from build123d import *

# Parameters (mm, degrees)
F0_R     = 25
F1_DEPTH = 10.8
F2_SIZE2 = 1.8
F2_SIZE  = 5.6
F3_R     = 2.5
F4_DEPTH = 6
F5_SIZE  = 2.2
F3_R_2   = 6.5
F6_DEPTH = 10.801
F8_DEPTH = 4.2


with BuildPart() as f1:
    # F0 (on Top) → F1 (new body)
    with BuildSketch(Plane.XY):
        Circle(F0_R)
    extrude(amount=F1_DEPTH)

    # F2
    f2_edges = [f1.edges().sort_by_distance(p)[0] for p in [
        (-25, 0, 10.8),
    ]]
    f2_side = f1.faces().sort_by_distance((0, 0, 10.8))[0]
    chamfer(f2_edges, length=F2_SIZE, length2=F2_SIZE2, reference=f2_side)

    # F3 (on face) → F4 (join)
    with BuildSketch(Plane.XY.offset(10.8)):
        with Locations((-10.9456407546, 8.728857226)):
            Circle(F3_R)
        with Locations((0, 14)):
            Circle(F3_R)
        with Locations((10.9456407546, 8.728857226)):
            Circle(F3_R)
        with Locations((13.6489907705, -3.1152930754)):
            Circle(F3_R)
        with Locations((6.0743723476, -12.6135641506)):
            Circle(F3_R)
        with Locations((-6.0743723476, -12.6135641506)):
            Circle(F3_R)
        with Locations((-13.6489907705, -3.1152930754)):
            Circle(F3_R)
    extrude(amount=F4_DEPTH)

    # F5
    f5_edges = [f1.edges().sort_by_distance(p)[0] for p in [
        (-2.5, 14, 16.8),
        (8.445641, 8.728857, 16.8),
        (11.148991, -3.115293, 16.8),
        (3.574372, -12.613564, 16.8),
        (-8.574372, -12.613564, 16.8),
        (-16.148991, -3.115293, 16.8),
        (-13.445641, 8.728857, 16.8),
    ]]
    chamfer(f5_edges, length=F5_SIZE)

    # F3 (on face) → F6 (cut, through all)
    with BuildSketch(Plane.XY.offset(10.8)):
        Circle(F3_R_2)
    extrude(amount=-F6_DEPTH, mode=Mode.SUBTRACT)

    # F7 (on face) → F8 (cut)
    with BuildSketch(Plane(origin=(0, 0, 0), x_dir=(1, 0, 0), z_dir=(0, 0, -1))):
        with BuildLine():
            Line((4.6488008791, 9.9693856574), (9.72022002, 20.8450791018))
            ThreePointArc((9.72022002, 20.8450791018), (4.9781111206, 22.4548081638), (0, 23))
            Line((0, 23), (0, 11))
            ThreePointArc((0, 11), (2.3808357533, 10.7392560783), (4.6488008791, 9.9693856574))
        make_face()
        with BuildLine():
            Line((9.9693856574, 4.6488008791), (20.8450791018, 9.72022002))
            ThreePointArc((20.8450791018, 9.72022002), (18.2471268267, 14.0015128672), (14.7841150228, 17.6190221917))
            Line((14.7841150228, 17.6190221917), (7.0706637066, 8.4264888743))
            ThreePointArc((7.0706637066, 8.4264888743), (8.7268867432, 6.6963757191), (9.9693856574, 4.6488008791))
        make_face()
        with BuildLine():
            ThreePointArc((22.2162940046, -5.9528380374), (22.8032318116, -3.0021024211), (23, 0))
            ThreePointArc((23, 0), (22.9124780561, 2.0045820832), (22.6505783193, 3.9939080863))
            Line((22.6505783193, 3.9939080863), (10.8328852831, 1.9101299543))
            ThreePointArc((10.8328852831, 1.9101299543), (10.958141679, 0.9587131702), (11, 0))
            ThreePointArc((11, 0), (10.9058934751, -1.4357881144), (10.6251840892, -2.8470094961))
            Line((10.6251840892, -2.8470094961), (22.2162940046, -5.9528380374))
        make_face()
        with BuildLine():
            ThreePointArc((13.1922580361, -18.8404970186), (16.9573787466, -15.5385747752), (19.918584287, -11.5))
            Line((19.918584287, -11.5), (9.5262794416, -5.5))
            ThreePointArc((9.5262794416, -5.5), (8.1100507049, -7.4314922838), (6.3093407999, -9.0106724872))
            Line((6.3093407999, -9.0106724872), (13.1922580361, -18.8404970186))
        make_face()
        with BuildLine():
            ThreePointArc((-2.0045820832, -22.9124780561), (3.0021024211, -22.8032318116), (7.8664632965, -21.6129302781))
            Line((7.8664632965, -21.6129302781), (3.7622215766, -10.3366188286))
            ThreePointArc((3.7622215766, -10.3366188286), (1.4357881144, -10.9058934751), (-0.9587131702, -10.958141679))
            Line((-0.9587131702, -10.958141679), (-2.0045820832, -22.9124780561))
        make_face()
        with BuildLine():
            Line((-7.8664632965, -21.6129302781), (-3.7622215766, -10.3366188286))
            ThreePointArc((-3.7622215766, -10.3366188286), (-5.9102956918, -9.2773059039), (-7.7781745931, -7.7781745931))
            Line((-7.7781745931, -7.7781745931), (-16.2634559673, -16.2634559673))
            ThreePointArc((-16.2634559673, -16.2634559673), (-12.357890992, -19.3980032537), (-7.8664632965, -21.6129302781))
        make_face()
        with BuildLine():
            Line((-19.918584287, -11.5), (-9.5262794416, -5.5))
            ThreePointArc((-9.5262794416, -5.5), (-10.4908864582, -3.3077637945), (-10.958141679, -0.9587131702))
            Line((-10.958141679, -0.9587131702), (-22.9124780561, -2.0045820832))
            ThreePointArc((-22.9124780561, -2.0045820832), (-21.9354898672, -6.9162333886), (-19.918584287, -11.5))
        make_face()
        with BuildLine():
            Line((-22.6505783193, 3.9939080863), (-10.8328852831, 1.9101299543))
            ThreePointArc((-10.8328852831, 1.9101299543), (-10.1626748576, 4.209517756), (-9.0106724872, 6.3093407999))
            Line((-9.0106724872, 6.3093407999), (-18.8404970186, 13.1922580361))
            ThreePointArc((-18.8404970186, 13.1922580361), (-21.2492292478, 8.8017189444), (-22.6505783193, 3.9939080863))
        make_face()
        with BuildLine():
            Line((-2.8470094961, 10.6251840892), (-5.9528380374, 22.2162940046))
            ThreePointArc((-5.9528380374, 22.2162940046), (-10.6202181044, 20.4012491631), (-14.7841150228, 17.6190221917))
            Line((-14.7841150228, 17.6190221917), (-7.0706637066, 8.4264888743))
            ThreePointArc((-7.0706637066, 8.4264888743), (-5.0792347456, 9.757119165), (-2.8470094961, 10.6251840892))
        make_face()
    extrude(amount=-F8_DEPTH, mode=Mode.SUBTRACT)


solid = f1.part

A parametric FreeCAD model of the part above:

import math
import FreeCAD as App
import Part
import Sketcher

V = App.Vector
Q = App.Units.Quantity


def edges_at(feature, points):
    """Names of the edges that pass closest to the given points."""
    edges = feature.Shape.Edges
    near = lambda p: min(range(len(edges)), key=lambda i: edges[i].distToShape(Part.Vertex(*p))[0])
    return sorted({f"Edge{near(p) + 1}" for p in points})

doc = App.newDocument("Part")
body = doc.addObject("PartDesign::Body", "Body")

sketch1 = body.newObject("Sketcher::SketchObject", "Sketch")
sketch1.AttachmentSupport = (doc.getObject("XY_Plane"), [""])
sketch1.MapMode = "FlatFace"
sketch1.addGeometry(Part.Circle(V(0, 0, 0), V(0, 0, 1), 25), False)
sketch1.addConstraint(Sketcher.Constraint("Coincident", 0, 3, -1, 1))
sketch1.addConstraint(Sketcher.Constraint("Diameter", 0, Q("50 mm")))
pad1 = body.newObject("PartDesign::Pad", "Pad")
pad1.Profile = sketch1
pad1.Length = 10.8
doc.recompute()

chamfer = body.newObject("PartDesign::Chamfer", "Chamfer")
chamfer.Base = (pad1, edges_at(pad1, [(-25, 0, 10.8)]))
chamfer.ChamferType = "Two distances"
chamfer.Size = 5.6
chamfer.Size2 = 1.8
chamfer.FlipDirection = True

sketch2 = body.newObject("Sketcher::SketchObject", "Sketch001")
sketch2.AttachmentSupport = (doc.getObject("XY_Plane"), [""])
sketch2.MapMode = "FlatFace"
sketch2.AttachmentOffset = App.Placement(V(0, 0, 10.8), App.Rotation())
sketch2.addGeometry(Part.Circle(V(-10.9, 8.7, 0), V(0, 0, 1), 2.5), False)
sketch2.addGeometry(Part.Circle(V(0, 14, 0), V(0, 0, 1), 2.5), False)
sketch2.addGeometry(Part.Circle(V(10.9, 8.7, 0), V(0, 0, 1), 2.5), False)
sketch2.addGeometry(Part.Circle(V(13.6, -3.1, 0), V(0, 0, 1), 2.5), False)
sketch2.addGeometry(Part.Circle(V(6.1, -12.6, 0), V(0, 0, 1), 2.5), False)
sketch2.addGeometry(Part.Circle(V(-6.1, -12.6, 0), V(0, 0, 1), 2.5), False)
sketch2.addGeometry(Part.Circle(V(-13.6, -3.1, 0), V(0, 0, 1), 2.5), False)
sketch2.addConstraint(Sketcher.Constraint("Equal", 0, 1))
sketch2.addConstraint(Sketcher.Constraint("Equal", 1, 2))
sketch2.addConstraint(Sketcher.Constraint("Equal", 2, 3))
sketch2.addConstraint(Sketcher.Constraint("Equal", 3, 4))
sketch2.addConstraint(Sketcher.Constraint("Equal", 4, 5))
sketch2.addConstraint(Sketcher.Constraint("Equal", 5, 6))
sketch2.addConstraint(Sketcher.Constraint("Symmetric", 0, 3, 2, 3, -2))
sketch2.addConstraint(Sketcher.Constraint("Symmetric", 4, 3, 5, 3, -2))
sketch2.addConstraint(Sketcher.Constraint("Symmetric", 3, 3, 6, 3, -2))
sketch2.addConstraint(Sketcher.Constraint("PointOnObject", 1, 3, -2))
sketch2.addConstraint(Sketcher.Constraint("Diameter", 0, Q("5 mm")))
sketch2.addConstraint(Sketcher.Constraint("DistanceY", -1, 1, 1, 3, Q("14 mm")))
sketch2.addConstraint(Sketcher.Constraint("DistanceX", 0, 3, -1, 1, Q("10.945641 mm")))
sketch2.addConstraint(Sketcher.Constraint("DistanceX", -1, 1, 3, 3, Q("13.648991 mm")))
sketch2.addConstraint(Sketcher.Constraint("DistanceY", 3, 3, 2, 3, Q("11.84415 mm")))
sketch2.addConstraint(Sketcher.Constraint("DistanceX", 4, 3, 3, 3, Q("7.574618 mm")))
sketch2.addConstraint(Sketcher.Constraint("DistanceY", 4, 3, 3, 3, Q("9.498271 mm")))
sketch2.addConstraint(Sketcher.Constraint("DistanceY", -1, 1, 0, 3, Q("8.728857 mm")))
pad2 = body.newObject("PartDesign::Pad", "Pad001")
pad2.Profile = sketch2
pad2.Length = 6
doc.recompute()

chamfer2 = body.newObject("PartDesign::Chamfer", "Chamfer001")
chamfer2.Base = (pad2, edges_at(pad2, [
    (-2.5, 14, 16.8),
    (8.446, 8.729, 16.8),
    (11.149, -3.115, 16.8),
    (3.574, -12.614, 16.8),
    (-8.574, -12.614, 16.8),
    (-16.149, -3.115, 16.8),
    (-13.446, 8.729, 16.8),
]))
chamfer2.Size = 2.2

sketch3 = body.newObject("Sketcher::SketchObject", "Sketch002")
sketch3.AttachmentSupport = (doc.getObject("XY_Plane"), [""])
sketch3.MapMode = "FlatFace"
sketch3.AttachmentOffset = App.Placement(V(0, 0, 10.8), App.Rotation())
sketch3.addGeometry(Part.Circle(V(0, 0, 0), V(0, 0, 1), 6), False)
sketch3.addConstraint(Sketcher.Constraint("Coincident", 0, 3, -1, 1))
sketch3.addConstraint(Sketcher.Constraint("Diameter", 0, Q("13 mm")))
pocket1 = body.newObject("PartDesign::Pocket", "Pocket")
pocket1.Profile = sketch3
pocket1.Type = "ThroughAll"

sketch4 = body.newObject("Sketcher::SketchObject", "Sketch003")
sketch4.AttachmentSupport = (doc.getObject("XY_Plane"), [""])
sketch4.MapMode = "FlatFace"
sketch4.addGeometry(Part.LineSegment(V(4.6, -10, 0), V(9.7, -20.8, 0)), False)
sketch4.addGeometry(Part.ArcOfCircle(Part.Circle(V(0, 0, 0), V(0, 0, 1), 23), math.radians(-90), math.radians(-65)), False)
sketch4.addGeometry(Part.LineSegment(V(0, -23, 0), V(0, -11, 0)), False)
sketch4.addGeometry(Part.ArcOfCircle(Part.Circle(V(0, 0, 0), V(0, 0, 1), 11), math.radians(-90), math.radians(-65)), False)
sketch4.addGeometry(Part.LineSegment(V(10, -4.6, 0), V(20.8, -9.7, 0)), False)
sketch4.addGeometry(Part.ArcOfCircle(Part.Circle(V(0, 0, 0), V(0, 0, 1), 23), math.radians(-50), math.radians(-25)), False)
sketch4.addGeometry(Part.LineSegment(V(14.8, -17.6, 0), V(7.1, -8.4, 0)), False)
sketch4.addGeometry(Part.ArcOfCircle(Part.Circle(V(0, 0, 0), V(0, 0, 1), 11), math.radians(-50), math.radians(-25)), False)
sketch4.addGeometry(Part.ArcOfCircle(Part.Circle(V(0, 0, 0), V(0, 0, 1), 23), math.radians(0), math.radians(15)), False)
sketch4.addGeometry(Part.ArcOfCircle(Part.Circle(V(0, 0, 0), V(0, 0, 1), 23), math.radians(-10), math.radians(0)), False)
sketch4.addGeometry(Part.LineSegment(V(22.7, -4, 0), V(10.8, -1.9, 0)), False)
sketch4.addGeometry(Part.ArcOfCircle(Part.Circle(V(0, 0, 0), V(0, 0, 1), 11), math.radians(-10), math.radians(0)), False)
sketch4.addGeometry(Part.ArcOfCircle(Part.Circle(V(0, 0, 0), V(0, 0, 1), 11), math.radians(0), math.radians(15)), False)
sketch4.addGeometry(Part.LineSegment(V(10.6, 2.8, 0), V(22.2, 6, 0)), False)
sketch4.addGeometry(Part.ArcOfCircle(Part.Circle(V(0, 0, 0), V(0, 0, 1), 23), math.radians(30), math.radians(55)), False)
sketch4.addGeometry(Part.LineSegment(V(19.9, 11.5, 0), V(9.5, 5.5, 0)), False)
sketch4.addGeometry(Part.ArcOfCircle(Part.Circle(V(0, 0, 0), V(0, 0, 1), 11), math.radians(30), math.radians(55)), False)
sketch4.addGeometry(Part.LineSegment(V(6.3, 9, 0), V(13.2, 18.8, 0)), False)
sketch4.addGeometry(Part.ArcOfCircle(Part.Circle(V(0, 0, 0), V(0, 0, 1), 23), math.radians(70), math.radians(95)), False)
sketch4.addGeometry(Part.LineSegment(V(7.9, 21.6, 0), V(3.8, 10.3, 0)), False)
sketch4.addGeometry(Part.ArcOfCircle(Part.Circle(V(0, 0, 0), V(0, 0, 1), 11), math.radians(70), math.radians(95)), False)
sketch4.addGeometry(Part.LineSegment(V(-1, 11, 0), V(-2, 22.9, 0)), False)
sketch4.addGeometry(Part.LineSegment(V(-7.9, 21.6, 0), V(-3.8, 10.3, 0)), False)
sketch4.addGeometry(Part.ArcOfCircle(Part.Circle(V(0, 0, 0), V(0, 0, 1), 11), math.radians(110), math.radians(135)), False)
sketch4.addGeometry(Part.LineSegment(V(-7.8, 7.8, 0), V(-16.3, 16.3, 0)), False)
sketch4.addGeometry(Part.ArcOfCircle(Part.Circle(V(0, 0, 0), V(0, 0, 1), 23), math.radians(110), math.radians(135)), False)
sketch4.addGeometry(Part.LineSegment(V(-19.9, 11.5, 0), V(-9.5, 5.5, 0)), False)
sketch4.addGeometry(Part.ArcOfCircle(Part.Circle(V(0, 0, 0), V(0, 0, 1), 11), math.radians(150), math.radians(175)), False)
sketch4.addGeometry(Part.LineSegment(V(-11, 1, 0), V(-22.9, 2, 0)), False)
sketch4.addGeometry(Part.ArcOfCircle(Part.Circle(V(0, 0, 0), V(0, 0, 1), 23), math.radians(150), math.radians(175)), False)
sketch4.addGeometry(Part.LineSegment(V(-22.7, -4, 0), V(-10.8, -1.9, 0)), False)
sketch4.addGeometry(Part.ArcOfCircle(Part.Circle(V(0, 0, 0), V(0, 0, 1), 11), math.radians(-170), math.radians(-145)), False)
sketch4.addGeometry(Part.LineSegment(V(-9, -6.3, 0), V(-18.8, -13.2, 0)), False)
sketch4.addGeometry(Part.ArcOfCircle(Part.Circle(V(0, 0, 0), V(0, 0, 1), 23), math.radians(-170), math.radians(-145)), False)
sketch4.addGeometry(Part.LineSegment(V(-2.8, -10.6, 0), V(-6, -22.2, 0)), False)
sketch4.addGeometry(Part.ArcOfCircle(Part.Circle(V(0, 0, 0), V(0, 0, 1), 23), math.radians(-130), math.radians(-105)), False)
sketch4.addGeometry(Part.LineSegment(V(-14.8, -17.6, 0), V(-7.1, -8.4, 0)), False)
sketch4.addGeometry(Part.ArcOfCircle(Part.Circle(V(0, 0, 0), V(0, 0, 1), 11), math.radians(-130), math.radians(-105)), False)
sketch4.addConstraint(Sketcher.Constraint("Coincident", 0, 2, 1, 2))
sketch4.addConstraint(Sketcher.Constraint("Coincident", 1, 1, 2, 1))
sketch4.addConstraint(Sketcher.Constraint("Coincident", 2, 2, 3, 1))
sketch4.addConstraint(Sketcher.Constraint("Coincident", 3, 2, 0, 1))
sketch4.addConstraint(Sketcher.Constraint("Coincident", 4, 2, 5, 2))
sketch4.addConstraint(Sketcher.Constraint("Coincident", 5, 1, 6, 1))
sketch4.addConstraint(Sketcher.Constraint("Coincident", 6, 2, 7, 1))
sketch4.addConstraint(Sketcher.Constraint("Coincident", 7, 2, 4, 1))
sketch4.addConstraint(Sketcher.Constraint("Tangent", 8, 1, 9, 2))
sketch4.addConstraint(Sketcher.Constraint("Coincident", 9, 1, 10, 1))
sketch4.addConstraint(Sketcher.Constraint("Coincident", 10, 2, 11, 1))
sketch4.addConstraint(Sketcher.Constraint("Tangent", 11, 2, 12, 1))
sketch4.addConstraint(Sketcher.Constraint("Coincident", 12, 2, 13, 1))
sketch4.addConstraint(Sketcher.Constraint("Coincident", 13, 2, 8, 2))
sketch4.addConstraint(Sketcher.Constraint("Coincident", 14, 1, 15, 1))
sketch4.addConstraint(Sketcher.Constraint("Coincident", 15, 2, 16, 1))
sketch4.addConstraint(Sketcher.Constraint("Coincident", 16, 2, 17, 1))
sketch4.addConstraint(Sketcher.Constraint("Coincident", 17, 2, 14, 2))
sketch4.addConstraint(Sketcher.Constraint("Coincident", 18, 1, 19, 1))
sketch4.addConstraint(Sketcher.Constraint("Coincident", 19, 2, 20, 1))
sketch4.addConstraint(Sketcher.Constraint("Coincident", 20, 2, 21, 1))
sketch4.addConstraint(Sketcher.Constraint("Coincident", 21, 2, 18, 2))
sketch4.addConstraint(Sketcher.Constraint("Coincident", 22, 2, 23, 1))
sketch4.addConstraint(Sketcher.Constraint("Coincident", 23, 2, 24, 1))
sketch4.addConstraint(Sketcher.Constraint("Coincident", 24, 2, 25, 2))
sketch4.addConstraint(Sketcher.Constraint("Coincident", 25, 1, 22, 1))
sketch4.addConstraint(Sketcher.Constraint("Coincident", 26, 2, 27, 1))
sketch4.addConstraint(Sketcher.Constraint("Coincident", 27, 2, 28, 1))
sketch4.addConstraint(Sketcher.Constraint("Coincident", 28, 2, 29, 2))
sketch4.addConstraint(Sketcher.Constraint("Coincident", 29, 1, 26, 1))
sketch4.addConstraint(Sketcher.Constraint("Coincident", 30, 2, 31, 1))
sketch4.addConstraint(Sketcher.Constraint("Coincident", 31, 2, 32, 1))
sketch4.addConstraint(Sketcher.Constraint("Coincident", 32, 2, 33, 2))
sketch4.addConstraint(Sketcher.Constraint("Coincident", 33, 1, 30, 1))
sketch4.addConstraint(Sketcher.Constraint("Coincident", 34, 2, 35, 2))
sketch4.addConstraint(Sketcher.Constraint("Coincident", 35, 1, 36, 1))
sketch4.addConstraint(Sketcher.Constraint("Coincident", 36, 2, 37, 1))
sketch4.addConstraint(Sketcher.Constraint("Coincident", 37, 2, 34, 1))
sketch4.addConstraint(Sketcher.Constraint("Vertical", 2))
sketch4.addConstraint(Sketcher.Constraint("Coincident", 1, 3, -1, 1))
sketch4.addConstraint(Sketcher.Constraint("Coincident", 3, 3, -1, 1))
sketch4.addConstraint(Sketcher.Constraint("Coincident", 5, 3, -1, 1))
sketch4.addConstraint(Sketcher.Constraint("Coincident", 7, 3, -1, 1))
sketch4.addConstraint(Sketcher.Constraint("Coincident", 8, 3, -1, 1))
sketch4.addConstraint(Sketcher.Constraint("Coincident", 11, 3, -1, 1))
sketch4.addConstraint(Sketcher.Constraint("Coincident", 14, 3, -1, 1))
sketch4.addConstraint(Sketcher.Constraint("Coincident", 16, 3, -1, 1))
sketch4.addConstraint(Sketcher.Constraint("Coincident", 18, 3, -1, 1))
sketch4.addConstraint(Sketcher.Constraint("Coincident", 20, 3, -1, 1))
sketch4.addConstraint(Sketcher.Constraint("Coincident", 23, 3, -1, 1))
sketch4.addConstraint(Sketcher.Constraint("Coincident", 25, 3, -1, 1))
sketch4.addConstraint(Sketcher.Constraint("Coincident", 27, 3, -1, 1))
sketch4.addConstraint(Sketcher.Constraint("Coincident", 29, 3, -1, 1))
sketch4.addConstraint(Sketcher.Constraint("Coincident", 31, 3, -1, 1))
sketch4.addConstraint(Sketcher.Constraint("Coincident", 33, 3, -1, 1))
sketch4.addConstraint(Sketcher.Constraint("Coincident", 35, 3, -1, 1))
sketch4.addConstraint(Sketcher.Constraint("Coincident", 37, 3, -1, 1))
sketch4.addConstraint(Sketcher.Constraint("Equal", 1, 5))
sketch4.addConstraint(Sketcher.Constraint("Equal", 3, 7))
sketch4.addConstraint(Sketcher.Constraint("Equal", 5, 8))
sketch4.addConstraint(Sketcher.Constraint("Equal", 8, 9))
sketch4.addConstraint(Sketcher.Constraint("Equal", 7, 11))
sketch4.addConstraint(Sketcher.Constraint("Equal", 11, 12))
sketch4.addConstraint(Sketcher.Constraint("Equal", 9, 14))
sketch4.addConstraint(Sketcher.Constraint("Equal", 12, 16))
sketch4.addConstraint(Sketcher.Constraint("Equal", 14, 18))
sketch4.addConstraint(Sketcher.Constraint("Equal", 16, 20))
sketch4.addConstraint(Sketcher.Constraint("Equal", 20, 23))
sketch4.addConstraint(Sketcher.Constraint("Equal", 18, 25))
sketch4.addConstraint(Sketcher.Constraint("Equal", 23, 27))
sketch4.addConstraint(Sketcher.Constraint("Equal", 25, 29))
sketch4.addConstraint(Sketcher.Constraint("Equal", 27, 31))
sketch4.addConstraint(Sketcher.Constraint("Equal", 29, 33))
sketch4.addConstraint(Sketcher.Constraint("Equal", 33, 35))
sketch4.addConstraint(Sketcher.Constraint("Equal", 31, 37))
sketch4.addConstraint(Sketcher.Constraint("PointOnObject", 1, 1, -2))
sketch4.addConstraint(Sketcher.Constraint("PointOnObject", 8, 1, -1))
sketch4.addConstraint(Sketcher.Constraint("PointOnObject", 11, 2, -1))
sketch4.addConstraint(Sketcher.Constraint("Horizontal", 19, 2, 22, 2))
sketch4.addConstraint(Sketcher.Constraint("Horizontal", 18, 1, 25, 1))
sketch4.addConstraint(Sketcher.Constraint("Horizontal", 15, 2, 26, 2))
sketch4.addConstraint(Sketcher.Constraint("Horizontal", 14, 1, 29, 1))
sketch4.addConstraint(Sketcher.Constraint("Horizontal", 10, 2, 30, 2))
sketch4.addConstraint(Sketcher.Constraint("Horizontal", 9, 1, 33, 1))
sketch4.addConstraint(Sketcher.Constraint("Horizontal", 5, 1, 35, 1))
sketch4.addConstraint(Sketcher.Constraint("Horizontal", 6, 2, 36, 2))
sketch4.addConstraint(Sketcher.Constraint("Radius", 1, Q("23 mm")))
sketch4.addConstraint(Sketcher.Constraint("Radius", 3, Q("11 mm")))
sketch4.addConstraint(Sketcher.Constraint("Angle", 0, Q("-65 deg")))
sketch4.addConstraint(Sketcher.Constraint("Angle", 4, Q("-25 deg")))
sketch4.addConstraint(Sketcher.Constraint("Angle", 6, Q("130 deg")))
sketch4.addConstraint(Sketcher.Constraint("Angle", 10, Q("170 deg")))
sketch4.addConstraint(Sketcher.Constraint("Angle", 13, Q("15 deg")))
sketch4.addConstraint(Sketcher.Constraint("Angle", 15, Q("-150 deg")))
sketch4.addConstraint(Sketcher.Constraint("Angle", 17, Q("55 deg")))
sketch4.addConstraint(Sketcher.Constraint("Angle", 19, Q("-110 deg")))
sketch4.addConstraint(Sketcher.Constraint("Angle", 21, Q("95 deg")))
sketch4.addConstraint(Sketcher.Constraint("Angle", 24, Q("135 deg")))
sketch4.addConstraint(Sketcher.Constraint("Angle", 28, Q("175 deg")))
sketch4.addConstraint(Sketcher.Constraint("Angle", 32, Q("-145 deg")))
sketch4.addConstraint(Sketcher.Constraint("Angle", 34, Q("-105 deg")))
sketch4.addConstraint(Sketcher.Constraint("DistanceY", -1, 1, 14, 1, Q("11.5 mm")))
sketch4.addConstraint(Sketcher.Constraint("DistanceX", -1, 1, 3, 2, Q("4.648801 mm")))
sketch4.addConstraint(Sketcher.Constraint("DistanceY", 7, 2, -1, 1, Q("4.648801 mm")))
sketch4.addConstraint(Sketcher.Constraint("DistanceX", 4, 2, 9, 1, Q("1.805499 mm")))
sketch4.addConstraint(Sketcher.Constraint("DistanceX", 12, 2, 10, 2, Q("0.207701 mm")))
sketch4.addConstraint(Sketcher.Constraint("DistanceX", 28, 2, 26, 2, Q("13.386199 mm")))
sketch4.addConstraint(Sketcher.Constraint("DistanceY", 37, 2, 3, 2, Q("0.655798 mm")))
sketch4.addConstraint(Sketcher.Constraint("DistanceY", 6, 2, -1, 1, Q("8.426489 mm")))
sketch4.addConstraint(Sketcher.Constraint("DistanceX", -1, 1, 16, 2, Q("6.309341 mm")))
sketch4.addConstraint(Sketcher.Constraint("DistanceY", -1, 1, 18, 1, Q("21.61293 mm")))
sketch4.addConstraint(Sketcher.Constraint("DistanceY", -1, 1, 20, 2, Q("10.958142 mm")))
sketch4.addConstraint(Sketcher.Constraint("DistanceY", 31, 2, -1, 1, Q("6.309341 mm")))
sketch4.addConstraint(Sketcher.Constraint("DistanceX", 23, 2, 20, 2, Q("6.819461 mm")))
pocket2 = body.newObject("PartDesign::Pocket", "Pocket001")
pocket2.Profile = sketch4
pocket2.Length = 4.2
pocket2.Reversed = True

doc.recompute()
